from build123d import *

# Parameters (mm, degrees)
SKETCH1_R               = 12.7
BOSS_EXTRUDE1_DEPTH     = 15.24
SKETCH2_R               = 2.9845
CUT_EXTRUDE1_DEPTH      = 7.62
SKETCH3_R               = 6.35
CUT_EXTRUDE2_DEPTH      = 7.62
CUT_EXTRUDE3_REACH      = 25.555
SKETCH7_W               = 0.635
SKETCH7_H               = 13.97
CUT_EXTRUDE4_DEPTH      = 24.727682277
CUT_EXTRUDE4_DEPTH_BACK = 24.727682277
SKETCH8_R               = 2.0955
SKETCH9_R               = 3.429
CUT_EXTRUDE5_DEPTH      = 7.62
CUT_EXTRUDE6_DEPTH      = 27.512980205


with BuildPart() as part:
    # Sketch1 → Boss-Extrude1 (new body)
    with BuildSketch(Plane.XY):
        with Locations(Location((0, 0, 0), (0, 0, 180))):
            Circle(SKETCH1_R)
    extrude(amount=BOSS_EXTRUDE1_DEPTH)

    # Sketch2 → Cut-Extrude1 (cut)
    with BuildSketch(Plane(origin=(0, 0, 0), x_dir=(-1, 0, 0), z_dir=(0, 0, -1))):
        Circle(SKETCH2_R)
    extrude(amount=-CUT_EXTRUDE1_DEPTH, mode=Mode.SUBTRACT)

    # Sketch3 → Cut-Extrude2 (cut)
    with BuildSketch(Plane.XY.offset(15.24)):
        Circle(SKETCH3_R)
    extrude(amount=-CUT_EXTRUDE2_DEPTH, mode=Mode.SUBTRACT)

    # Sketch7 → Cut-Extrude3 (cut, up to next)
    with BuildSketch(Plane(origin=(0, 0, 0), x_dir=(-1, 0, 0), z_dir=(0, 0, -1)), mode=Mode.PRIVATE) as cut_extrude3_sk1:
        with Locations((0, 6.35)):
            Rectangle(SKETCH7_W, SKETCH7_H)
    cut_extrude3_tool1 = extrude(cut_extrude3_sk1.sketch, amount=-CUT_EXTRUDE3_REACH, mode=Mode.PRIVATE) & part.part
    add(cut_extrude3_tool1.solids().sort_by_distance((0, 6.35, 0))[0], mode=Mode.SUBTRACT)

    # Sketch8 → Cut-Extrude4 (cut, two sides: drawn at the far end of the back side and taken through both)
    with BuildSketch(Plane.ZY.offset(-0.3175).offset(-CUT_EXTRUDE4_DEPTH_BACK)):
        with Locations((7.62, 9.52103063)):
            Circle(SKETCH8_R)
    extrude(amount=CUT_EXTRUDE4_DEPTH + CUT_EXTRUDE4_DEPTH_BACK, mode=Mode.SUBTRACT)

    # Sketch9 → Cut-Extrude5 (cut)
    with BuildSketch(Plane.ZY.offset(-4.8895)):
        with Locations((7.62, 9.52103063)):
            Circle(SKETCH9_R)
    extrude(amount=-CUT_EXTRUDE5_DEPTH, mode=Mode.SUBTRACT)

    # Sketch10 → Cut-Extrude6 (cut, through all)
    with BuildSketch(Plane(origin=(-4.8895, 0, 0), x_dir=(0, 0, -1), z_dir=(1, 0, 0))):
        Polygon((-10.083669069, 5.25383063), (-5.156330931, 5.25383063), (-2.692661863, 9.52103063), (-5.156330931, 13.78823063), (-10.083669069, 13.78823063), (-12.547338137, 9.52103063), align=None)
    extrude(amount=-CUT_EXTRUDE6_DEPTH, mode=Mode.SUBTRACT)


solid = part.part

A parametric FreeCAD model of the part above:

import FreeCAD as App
import Part
import Sketcher

V = App.Vector
Q = App.Units.Quantity


def add_polygon(sketch, points):
    """Adds a closed chain of lines whose ends are joined by coincident constraints."""
    first, n = sketch.GeometryCount, len(points)
    for a, b in zip(points, points[1:] + points[:1]):
        sketch.addGeometry(Part.LineSegment(App.Vector(*a, 0), App.Vector(*b, 0)), False)
    for i in range(n):
        sketch.addConstraint(Sketcher.Constraint("Coincident", first + i, 2, first + (i + 1) % n, 1))

doc = App.newDocument("Part")
body = doc.addObject("PartDesign::Body", "Body")

sketch1 = doc.addObject("Sketcher::SketchObject", "Sketch")
body.addObject(sketch1)
sketch1.AttachmentSupport = (doc.XY_Plane, [""])
sketch1.MapMode = "FlatFace"
sketch1.addGeometry(Part.Circle(V(0, 0, 0), V(0, 0, 1), 12.7), False)
sketch1.addConstraint([
    Sketcher.Constraint("Coincident", 0, 3, -1, 1),
    Sketcher.Constraint("Diameter", 0, Q("1 in")),
])
pad1 = doc.addObject("PartDesign::Pad", "Pad")
body.addObject(pad1)
pad1.Profile = sketch1
pad1.Length = Q("0.6 in")

sketch2 = doc.addObject("Sketcher::SketchObject", "Sketch001")
body.addObject(sketch2)
sketch2.AttachmentSupport = (doc.XY_Plane, [""])
sketch2.MapMode = "FlatFace"
sketch2.addGeometry(Part.Circle(V(0, 0, 0), V(0, 0, 1), 2.9845), False)
sketch2.addConstraint([
    Sketcher.Constraint("Coincident", 0, 3, -1, 1),
    Sketcher.Constraint("Diameter", 0, Q("0.235 in")),
])
pocket1 = doc.addObject("PartDesign::Pocket", "Pocket")
body.addObject(pocket1)
pocket1.Profile = sketch2
pocket1.Length = Q("0.3 in")
pocket1.Reversed = True

sketch3 = doc.addObject("Sketcher::SketchObject", "Sketch002")
body.addObject(sketch3)
sketch3.AttachmentSupport = (doc.XY_Plane, [""])
sketch3.MapMode = "FlatFace"
sketch3.AttachmentOffset = App.Placement(V(0, 0, 0.6 * 25.4), App.Rotation())
sketch3.addGeometry(Part.Circle(V(0, 0, 0), V(0, 0, 1), 6.35), False)
sketch3.addConstraint([
    Sketcher.Constraint("Coincident", 0, 3, -1, 1),
    Sketcher.Constraint("Diameter", 0, Q("0.5 in")),
])
pocket2 = doc.addObject("PartDesign::Pocket", "Pocket001")
body.addObject(pocket2)
pocket2.Profile = sketch3
pocket2.Length = Q("0.3 in")

sketch4 = doc.addObject("Sketcher::SketchObject", "Sketch003")
body.addObject(sketch4)
sketch4.AttachmentSupport = (doc.XY_Plane, [""])
sketch4.MapMode = "FlatFace"
add_polygon(sketch4, [(0.3175, 13.335), (0.3175, -0.635), (-0.3175, -0.635), (-0.3175, 13.335)])
sketch4.addConstraint([
    Sketcher.Constraint("Vertical", 0),
    Sketcher.Constraint("Horizontal", 1),
    Sketcher.Constraint("Vertical", 2),
    Sketcher.Constraint("Horizontal", 3),
    Sketcher.Constraint("DistanceY", 0, 2, 0, 1, Q("0.55 in")),
    Sketcher.Constraint("DistanceX", 1, 2, 1, 1, Q("0.025 in")),
    Sketcher.Constraint("DistanceY", 0, 2, -1, 1, Q("0.025 in")),
    Sketcher.Constraint("DistanceX", -1, 1, 0, 2, Q("0.0125 in")),
])
pocket3 = doc.addObject("PartDesign::Pocket", "Pocket002")
body.addObject(pocket3)
pocket3.Profile = sketch4
pocket3.Length = Q("0.6 in")
pocket3.Reversed = True

sketch5 = doc.addObject("Sketcher::SketchObject", "Sketch004")
body.addObject(sketch5)
sketch5.AttachmentSupport = (doc.YZ_Plane, [""])
sketch5.MapMode = "FlatFace"
sketch5.AttachmentOffset = App.Placement(V(0, 0, 0.0125 * 25.4), App.Rotation())
sketch5.addGeometry(Part.Circle(V(9.521031, 7.62, 0), V(0, 0, 1), 2.0955), False)
sketch5.addConstraint([
    Sketcher.Constraint("Diameter", 0, Q("0.165 in")),
    Sketcher.Constraint("DistanceY", -1, 1, 0, 3, Q("0.3 in")),
    Sketcher.Constraint("DistanceX", -1, 1, 0, 3, 9.521031),
])
pocket4 = doc.addObject("PartDesign::Pocket", "Pocket003")
body.addObject(pocket4)
pocket4.Profile = sketch5
pocket4.Type = "ThroughAll"
pocket4.Midplane = True

sketch6 = doc.addObject("Sketcher::SketchObject", "Sketch005")
body.addObject(sketch6)
sketch6.AttachmentSupport = (doc.YZ_Plane, [""])
sketch6.MapMode = "FlatFace"
sketch6.AttachmentOffset = App.Placement(V(0, 0, 0.1925 * 25.4), App.Rotation())
sketch6.addGeometry(Part.Circle(V(9.521031, 7.62, 0), V(0, 0, 1), 3.429), False)
sketch6.addConstraint([
    Sketcher.Constraint("Diameter", 0, Q("0.27 in")),
    Sketcher.Constraint("DistanceY", -1, 1, 0, 3, Q("0.3 in")),
    Sketcher.Constraint("DistanceX", -1, 1, 0, 3, 9.521031),
])
pocket5 = doc.addObject("PartDesign::Pocket", "Pocket004")
body.addObject(pocket5)
pocket5.Profile = sketch6
pocket5.Length = Q("0.3 in")
pocket5.Reversed = True

sketch7 = doc.addObject("Sketcher::SketchObject", "Sketch006")
body.addObject(sketch7)
sketch7.AttachmentSupport = (doc.YZ_Plane, [""])
sketch7.MapMode = "FlatFace"
sketch7.AttachmentOffset = App.Placement(V(0, 0, -0.1925 * 25.4), App.Rotation())
add_polygon(sketch7, [(5.253831, 10.083669), (5.253831, 5.156331), (9.521031, 2.692662), (13.788231, 5.156331), (13.788231, 10.083669), (9.521031, 12.547338)])
sketch7.addConstraint([
    Sketcher.Constraint("Vertical", 0),
    Sketcher.Constraint("Vertical", 3),
    Sketcher.Constraint("Parallel", 1, 4),
    Sketcher.Constraint("Parallel", 2, 5),
    Sketcher.Constraint("Horizontal", 0, 2, 2, 2),
    Sketcher.Constraint("Horizontal", 3, 2, 5, 2),
    Sketcher.Constraint("Vertical", 1, 2, 4, 2),
    Sketcher.Constraint("Angle", 1, Q("-30 deg")),
    Sketcher.Constraint("DistanceX", 0, 2, 1, 2, Q("0.168 in")),
    Sketcher.Constraint("DistanceY", 0, 2, 0, 1, 4.927338),
    Sketcher.Constraint("DistanceX", -1, 1, 0, 2, 5.253831),
    Sketcher.Constraint("DistanceY", -1, 1, 0, 2, 5.156331),
])
pocket6 = doc.addObject("PartDesign::Pocket", "Pocket005")
body.addObject(pocket6)
pocket6.Profile = sketch7
pocket6.Type = "ThroughAll"

doc.recompute()
